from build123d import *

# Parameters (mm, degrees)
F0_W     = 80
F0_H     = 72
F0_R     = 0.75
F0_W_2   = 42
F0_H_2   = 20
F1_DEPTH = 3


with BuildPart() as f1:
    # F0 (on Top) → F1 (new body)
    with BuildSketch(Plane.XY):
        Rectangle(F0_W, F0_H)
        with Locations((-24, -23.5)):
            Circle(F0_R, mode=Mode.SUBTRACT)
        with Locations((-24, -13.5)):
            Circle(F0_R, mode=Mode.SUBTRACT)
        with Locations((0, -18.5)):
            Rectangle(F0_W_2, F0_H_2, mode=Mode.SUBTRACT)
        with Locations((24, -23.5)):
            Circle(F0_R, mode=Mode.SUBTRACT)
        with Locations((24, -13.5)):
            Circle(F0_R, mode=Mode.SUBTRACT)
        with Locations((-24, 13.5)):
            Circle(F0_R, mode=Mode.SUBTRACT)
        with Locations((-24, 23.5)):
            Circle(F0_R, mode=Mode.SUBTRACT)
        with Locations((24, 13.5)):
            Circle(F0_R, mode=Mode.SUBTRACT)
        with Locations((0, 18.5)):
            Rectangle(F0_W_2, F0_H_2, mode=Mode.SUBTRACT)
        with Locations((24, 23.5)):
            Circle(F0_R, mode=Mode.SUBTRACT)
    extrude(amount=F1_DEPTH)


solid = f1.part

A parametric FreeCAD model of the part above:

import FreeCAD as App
import Part
import Sketcher


def add_polygon(sketch, points):
    """Adds a closed chain of lines whose ends are joined by coincident constraints."""
    first, n = sketch.GeometryCount, len(points)
    for a, b in zip(points, points[1:] + points[:1]):
        sketch.addGeometry(Part.LineSegment(App.Vector(*a, 0), App.Vector(*b, 0)), False)
    for i in range(n):
        sketch.addConstraint(Sketcher.Constraint("Coincident", first + i, 2, first + (i + 1) % n, 1))

doc = App.newDocument("Part")
body = doc.addObject("PartDesign::Body", "Body")

# Sketch on XY plane
sketch1 = doc.addObject("Sketcher::SketchObject", "Sketch")
body.addObject(sketch1)
sketch1.AttachmentSupport = (doc.XY_Plane, [""])
sketch1.MapMode = "FlatFace"
add_polygon(sketch1, [(-40, 36), (-40, -36), (40, -36), (40, 36)])  # lines 0-3
sketch1.addGeometry(Part.Circle(App.Vector(-24, -23.5, 0), App.Vector(0, 0, 1), 0.75), False)  # 4
sketch1.addGeometry(Part.Circle(App.Vector(-24, -13.5, 0), App.Vector(0, 0, 1), 0.75), False)  # 5
add_polygon(sketch1, [(21, -28.5), (-21, -28.5), (-21, -8.5), (21, -8.5)])  # lines 6-9
sketch1.addGeometry(Part.Circle(App.Vector(24, -23.5, 0), App.Vector(0, 0, 1), 0.75), False)  # 10
sketch1.addGeometry(Part.Circle(App.Vector(24, -13.5, 0), App.Vector(0, 0, 1), 0.75), False)  # 11
sketch1.addGeometry(Part.Circle(App.Vector(-24, 13.5, 0), App.Vector(0, 0, 1), 0.75), False)  # 12
sketch1.addGeometry(Part.Circle(App.Vector(-24, 23.5, 0), App.Vector(0, 0, 1), 0.75), False)  # 13
sketch1.addGeometry(Part.Circle(App.Vector(24, 13.5, 0), App.Vector(0, 0, 1), 0.75), False)  # 14
add_polygon(sketch1, [(21, 8.5), (-21, 8.5), (-21, 28.5), (21, 28.5)])  # lines 15-18
sketch1.addGeometry(Part.Circle(App.Vector(24, 23.5, 0), App.Vector(0, 0, 1), 0.75), False)  # 19
sketch1.addConstraint([
    Sketcher.Constraint("Vertical", 0),
    Sketcher.Constraint("Horizontal", 1),
    Sketcher.Constraint("Vertical", 2),
    Sketcher.Constraint("Horizontal", 3),
    Sketcher.Constraint("Horizontal", 6),
    Sketcher.Constraint("Vertical", 7),
    Sketcher.Constraint("Horizontal", 8),
    Sketcher.Constraint("Vertical", 9),
    Sketcher.Constraint("Horizontal", 15),
    Sketcher.Constraint("Vertical", 16),
    Sketcher.Constraint("Horizontal", 17),
    Sketcher.Constraint("Vertical", 18),
    Sketcher.Constraint("Equal", 4, 5),
    Sketcher.Constraint("Equal", 5, 10),
    Sketcher.Constraint("Equal", 10, 11),
    Sketcher.Constraint("Equal", 11, 12),
    Sketcher.Constraint("Equal", 12, 13),
    Sketcher.Constraint("Equal", 13, 14),
    Sketcher.Constraint("Equal", 14, 19),
    Sketcher.Constraint("Symmetric", 11, 3, 12, 3, -1, 1),
    Sketcher.Constraint("Symmetric", 10, 3, 13, 3, -1, 1),
    Sketcher.Constraint("Symmetric", 5, 3, 14, 3, -1, 1),
    Sketcher.Constraint("Symmetric", 4, 3, 19, 3, -1, 1),
    Sketcher.Constraint("Symmetric", 0, 2, 2, 2, -1, 1),
    Sketcher.Constraint("Symmetric", 8, 2, 15, 2, -1, 1),
    Sketcher.Constraint("Symmetric", 6, 2, 17, 2, -1, 1),
    Sketcher.Constraint("Symmetric", 4, 3, 10, 3, -2),
    Sketcher.Constraint("Symmetric", 5, 3, 11, 3, -2),
    Sketcher.Constraint("Vertical", 4, 3, 5, 3),
    Sketcher.Constraint("Vertical", 7, 2, 15, 2),
    Sketcher.Constraint("Diameter", 4, 1.5),
    Sketcher.Constraint("DistanceX", 1, 1, 1, 2, 80.0),
    Sketcher.Constraint("DistanceX", 6, 2, 6, 1, 42.0),
    Sketcher.Constraint("DistanceY", 0, 2, 0, 1, 72.0),
    Sketcher.Constraint("DistanceY", 7, 1, 7, 2, 20.0),
    Sketcher.Constraint("DistanceX", 4, 3, -1, 1, 24.0),
    Sketcher.Constraint("DistanceY", 4, 3, 5, 3, 10.0),
    Sketcher.Constraint("DistanceY", 5, 3, 12, 3, 27.0),
    Sketcher.Constraint("DistanceY", 6, 2, 4, 3, 5.0),
])
pad1 = doc.addObject("PartDesign::Pad", "Pad")
body.addObject(pad1)
pad1.Profile = sketch1
pad1.Length = 3

doc.recompute()
